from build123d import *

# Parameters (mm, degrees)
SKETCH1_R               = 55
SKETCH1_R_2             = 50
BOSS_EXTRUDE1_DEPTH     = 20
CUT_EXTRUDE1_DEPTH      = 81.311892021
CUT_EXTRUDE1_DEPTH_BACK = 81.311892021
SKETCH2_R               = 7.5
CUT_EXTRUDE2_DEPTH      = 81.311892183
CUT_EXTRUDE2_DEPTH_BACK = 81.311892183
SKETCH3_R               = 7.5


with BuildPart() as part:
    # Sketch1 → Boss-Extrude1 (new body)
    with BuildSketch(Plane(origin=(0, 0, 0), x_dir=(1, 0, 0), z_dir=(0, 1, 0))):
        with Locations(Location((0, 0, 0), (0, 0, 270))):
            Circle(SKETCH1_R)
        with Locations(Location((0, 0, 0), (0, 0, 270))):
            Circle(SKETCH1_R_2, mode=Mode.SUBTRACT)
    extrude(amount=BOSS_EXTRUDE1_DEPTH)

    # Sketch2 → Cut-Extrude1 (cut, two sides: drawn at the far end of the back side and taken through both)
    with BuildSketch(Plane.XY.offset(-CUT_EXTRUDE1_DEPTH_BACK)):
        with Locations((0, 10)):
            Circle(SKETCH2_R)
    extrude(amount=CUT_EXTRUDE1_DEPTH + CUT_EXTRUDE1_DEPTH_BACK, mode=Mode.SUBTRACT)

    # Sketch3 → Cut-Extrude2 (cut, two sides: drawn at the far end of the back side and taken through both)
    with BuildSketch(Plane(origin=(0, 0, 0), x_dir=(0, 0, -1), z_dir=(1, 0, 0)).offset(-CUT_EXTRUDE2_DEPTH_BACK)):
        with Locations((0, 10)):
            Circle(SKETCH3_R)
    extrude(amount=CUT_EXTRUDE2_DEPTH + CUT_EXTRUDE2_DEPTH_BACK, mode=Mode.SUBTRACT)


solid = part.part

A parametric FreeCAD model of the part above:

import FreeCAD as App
import Part
import Sketcher
Q = App.Units.Quantity

doc = App.newDocument("Part")
body = doc.addObject("PartDesign::Body", "Body")

sketch1 = body.newObject("Sketcher::SketchObject", "Sketch")
sketch1.AttachmentSupport = (doc.getObject("XZ_Plane"), [""])
sketch1.MapMode = "FlatFace"
sketch1.addGeometry([
    Part.Circle(App.Vector(0, 0, 0), App.Vector(0, 0, 1), 55),
    Part.Circle(App.Vector(0, 0, 0), App.Vector(0, 0, 1), 50),
], False)
sketch1.addConstraint([
    Sketcher.Constraint("Coincident", 0, 3, -1, 1),
    Sketcher.Constraint("Coincident", 1, 3, -1, 1),
    Sketcher.Constraint("Diameter", 0, Q("110 mm")),
    Sketcher.Constraint("Diameter", 1, Q("100 mm")),
])
pad1 = body.newObject("PartDesign::Pad", "Pad")
pad1.Profile = sketch1
pad1.Length = 20
pad1.Reversed = True

sketch2 = body.newObject("Sketcher::SketchObject", "Sketch001")
sketch2.AttachmentSupport = (doc.getObject("XY_Plane"), [""])
sketch2.MapMode = "FlatFace"
sketch2.addGeometry(Part.Circle(App.Vector(0, 10, 0), App.Vector(0, 0, 1), 8), False)
sketch2.addConstraint([
    Sketcher.Constraint("PointOnObject", 0, 3, -2),
    Sketcher.Constraint("Diameter", 0, Q("15 mm")),
    Sketcher.Constraint("DistanceY", -1, 1, 0, 3, Q("10 mm")),
])
pocket1 = body.newObject("PartDesign::Pocket", "Pocket")
pocket1.Profile = sketch2
pocket1.Type = "ThroughAll"
pocket1.Midplane = True

sketch3 = body.newObject("Sketcher::SketchObject", "Sketch002")
sketch3.AttachmentSupport = (doc.getObject("YZ_Plane"), [""])
sketch3.MapMode = "FlatFace"
sketch3.addGeometry(Part.Circle(App.Vector(10, 0, 0), App.Vector(0, 0, 1), 8), False)
sketch3.addConstraint([
    Sketcher.Constraint("PointOnObject", 0, 3, -1),
    Sketcher.Constraint("Diameter", 0, Q("15 mm")),
    Sketcher.Constraint("DistanceX", -1, 1, 0, 3, Q("10 mm")),
])
pocket2 = body.newObject("PartDesign::Pocket", "Pocket001")
pocket2.Profile = sketch3
pocket2.Type = "ThroughAll"
pocket2.Midplane = True

doc.recompute()
